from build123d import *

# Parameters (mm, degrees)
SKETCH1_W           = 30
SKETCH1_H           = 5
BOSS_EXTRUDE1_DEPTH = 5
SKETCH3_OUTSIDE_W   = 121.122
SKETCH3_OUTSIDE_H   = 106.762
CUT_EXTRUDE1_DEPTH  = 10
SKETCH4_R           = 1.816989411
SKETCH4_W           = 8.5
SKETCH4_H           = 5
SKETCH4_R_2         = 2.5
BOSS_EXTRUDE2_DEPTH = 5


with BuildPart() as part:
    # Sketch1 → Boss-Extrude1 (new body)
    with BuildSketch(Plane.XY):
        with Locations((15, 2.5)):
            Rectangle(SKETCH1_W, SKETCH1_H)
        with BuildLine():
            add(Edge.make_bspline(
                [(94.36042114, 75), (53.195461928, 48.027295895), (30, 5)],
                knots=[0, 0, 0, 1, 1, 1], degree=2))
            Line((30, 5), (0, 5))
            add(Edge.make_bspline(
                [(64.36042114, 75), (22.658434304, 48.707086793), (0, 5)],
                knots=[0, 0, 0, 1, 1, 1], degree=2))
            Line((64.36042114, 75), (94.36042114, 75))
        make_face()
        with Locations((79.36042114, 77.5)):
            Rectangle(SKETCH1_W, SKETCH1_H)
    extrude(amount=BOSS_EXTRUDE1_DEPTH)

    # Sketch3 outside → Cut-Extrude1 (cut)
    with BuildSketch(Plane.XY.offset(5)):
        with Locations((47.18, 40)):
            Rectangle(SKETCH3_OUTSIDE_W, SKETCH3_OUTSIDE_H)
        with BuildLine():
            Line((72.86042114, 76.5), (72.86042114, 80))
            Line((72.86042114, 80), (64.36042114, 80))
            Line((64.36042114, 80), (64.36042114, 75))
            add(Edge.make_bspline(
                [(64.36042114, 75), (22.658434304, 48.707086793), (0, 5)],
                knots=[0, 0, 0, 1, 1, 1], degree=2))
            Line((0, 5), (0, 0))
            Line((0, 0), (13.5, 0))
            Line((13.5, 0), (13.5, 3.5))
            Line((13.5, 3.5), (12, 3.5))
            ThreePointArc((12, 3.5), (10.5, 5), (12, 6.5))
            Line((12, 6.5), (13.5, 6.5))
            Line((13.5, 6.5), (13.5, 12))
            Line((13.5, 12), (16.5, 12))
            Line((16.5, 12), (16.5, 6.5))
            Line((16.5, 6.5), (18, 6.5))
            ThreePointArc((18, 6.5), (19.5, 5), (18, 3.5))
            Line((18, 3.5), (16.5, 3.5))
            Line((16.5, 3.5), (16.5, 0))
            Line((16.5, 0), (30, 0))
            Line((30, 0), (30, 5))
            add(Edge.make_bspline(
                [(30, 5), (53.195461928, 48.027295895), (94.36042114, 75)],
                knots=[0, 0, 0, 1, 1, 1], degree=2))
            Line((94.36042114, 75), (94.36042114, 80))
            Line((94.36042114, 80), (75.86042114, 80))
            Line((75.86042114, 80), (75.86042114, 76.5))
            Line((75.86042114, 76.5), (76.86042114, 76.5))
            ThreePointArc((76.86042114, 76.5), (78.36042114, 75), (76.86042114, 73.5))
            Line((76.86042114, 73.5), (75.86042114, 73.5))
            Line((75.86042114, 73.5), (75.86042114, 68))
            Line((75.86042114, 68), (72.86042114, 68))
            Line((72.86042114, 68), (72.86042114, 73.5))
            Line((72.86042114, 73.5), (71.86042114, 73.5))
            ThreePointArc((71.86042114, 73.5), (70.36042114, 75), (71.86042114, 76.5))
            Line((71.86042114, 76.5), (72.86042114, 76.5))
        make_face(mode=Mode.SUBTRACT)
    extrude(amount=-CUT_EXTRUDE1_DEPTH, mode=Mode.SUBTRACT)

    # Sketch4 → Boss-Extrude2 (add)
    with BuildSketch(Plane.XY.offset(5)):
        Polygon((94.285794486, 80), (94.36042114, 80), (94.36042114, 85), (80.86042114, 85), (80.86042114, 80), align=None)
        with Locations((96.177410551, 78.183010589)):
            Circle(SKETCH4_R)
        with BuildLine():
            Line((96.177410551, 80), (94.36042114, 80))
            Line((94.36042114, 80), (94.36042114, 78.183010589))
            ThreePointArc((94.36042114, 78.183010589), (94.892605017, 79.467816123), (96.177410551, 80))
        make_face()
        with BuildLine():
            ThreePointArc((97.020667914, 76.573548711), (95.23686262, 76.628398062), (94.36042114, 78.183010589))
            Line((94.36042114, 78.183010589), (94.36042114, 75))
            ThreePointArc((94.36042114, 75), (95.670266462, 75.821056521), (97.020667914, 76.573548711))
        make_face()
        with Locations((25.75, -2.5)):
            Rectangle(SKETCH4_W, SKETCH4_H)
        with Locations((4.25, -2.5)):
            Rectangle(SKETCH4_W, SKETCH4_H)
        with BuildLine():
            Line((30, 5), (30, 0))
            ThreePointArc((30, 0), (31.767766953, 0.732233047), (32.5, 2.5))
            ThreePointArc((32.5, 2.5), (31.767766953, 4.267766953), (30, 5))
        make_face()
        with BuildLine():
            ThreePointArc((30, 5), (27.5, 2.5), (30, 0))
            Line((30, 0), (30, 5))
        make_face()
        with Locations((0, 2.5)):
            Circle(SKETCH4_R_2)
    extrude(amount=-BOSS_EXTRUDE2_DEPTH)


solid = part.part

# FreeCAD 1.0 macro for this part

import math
import FreeCAD as App
import Part
import Sketcher
Q = App.Units.Quantity


def add_polygon(sketch, points):
    """Adds a closed chain of lines whose ends are joined by coincident constraints."""
    first, n = sketch.GeometryCount, len(points)
    for a, b in zip(points, points[1:] + points[:1]):
        sketch.addGeometry(Part.LineSegment(App.Vector(*a, 0), App.Vector(*b, 0)), False)
    for i in range(n):
        sketch.addConstraint(Sketcher.Constraint("Coincident", first + i, 2, first + (i + 1) % n, 1))

doc = App.newDocument("Part")
body = doc.addObject("PartDesign::Body", "Body")

sketch1 = body.newObject("Sketcher::SketchObject", "Sketch")
sketch1.AttachmentSupport = (doc.getObject("XY_Plane"), [""])
sketch1.MapMode = "FlatFace"
sketch1.addGeometry(Part.LineSegment(App.Vector(0, 5, 0), App.Vector(0, 0, 0)), False)
sketch1.addGeometry(Part.LineSegment(App.Vector(0, 0, 0), App.Vector(30, 0, 0)), False)
sketch1.addGeometry(Part.LineSegment(App.Vector(30, 0, 0), App.Vector(30, 5, 0)), False)
sketch1.addGeometry(Part.BSplineCurve([App.Vector(94.360421, 75, 0), App.Vector(53.195462, 48.027296, 0), App.Vector(30, 5, 0)], [3, 3], [0, 1], False, 2, [1, 1, 1], False), False)
sketch1.addGeometry(Part.LineSegment(App.Vector(94.360421, 75, 0), App.Vector(94.360421, 80, 0)), False)
sketch1.addGeometry(Part.LineSegment(App.Vector(94.360421, 80, 0), App.Vector(64.360421, 80, 0)), False)
sketch1.addGeometry(Part.LineSegment(App.Vector(64.360421, 80, 0), App.Vector(64.360421, 75, 0)), False)
sketch1.addGeometry(Part.BSplineCurve([App.Vector(64.360421, 75, 0), App.Vector(22.658434, 48.707087, 0), App.Vector(0, 5, 0)], [3, 3], [0, 1], False, 2, [1, 1, 1], False), False)
sketch1.addConstraint(Sketcher.Constraint("Block", 3))
sketch1.addConstraint(Sketcher.Constraint("Block", 7))
sketch1.addConstraint(Sketcher.Constraint("Coincident", 0, 2, 1, 1))
sketch1.addConstraint(Sketcher.Constraint("Coincident", 1, 2, 2, 1))
sketch1.addConstraint(Sketcher.Constraint("Coincident", 2, 2, 3, 2))
sketch1.addConstraint(Sketcher.Constraint("Coincident", 3, 1, 4, 1))
sketch1.addConstraint(Sketcher.Constraint("Coincident", 4, 2, 5, 1))
sketch1.addConstraint(Sketcher.Constraint("Coincident", 5, 2, 6, 1))
sketch1.addConstraint(Sketcher.Constraint("Coincident", 6, 2, 7, 1))
sketch1.addConstraint(Sketcher.Constraint("Coincident", 7, 2, 0, 1))
sketch1.addConstraint(Sketcher.Constraint("Vertical", 0))
sketch1.addConstraint(Sketcher.Constraint("Horizontal", 1))
sketch1.addConstraint(Sketcher.Constraint("Vertical", 2))
sketch1.addConstraint(Sketcher.Constraint("Vertical", 4))
sketch1.addConstraint(Sketcher.Constraint("Horizontal", 5))
sketch1.addConstraint(Sketcher.Constraint("Vertical", 6))
sketch1.addConstraint(Sketcher.Constraint("PointOnObject", 1, 2, -1))
sketch1.addConstraint(Sketcher.Constraint("Equal", 2, 4))
pad1 = body.newObject("PartDesign::Pad", "Pad")
pad1.Profile = sketch1
pad1.Length = 5

sketch2 = body.newObject("Sketcher::SketchObject", "Sketch001")
sketch2.AttachmentSupport = (doc.getObject("XY_Plane"), [""])
sketch2.MapMode = "FlatFace"
sketch2.AttachmentOffset = App.Placement(App.Vector(0, 0, 5), App.Rotation())
add_polygon(sketch2, [(-13.381, 93.381), (-13.381, -13.381), (107.741, -13.381), (107.741, 93.381)])
sketch2.addGeometry(Part.LineSegment(App.Vector(72.860421, 80, 0), App.Vector(72.860421, 76.5, 0)), False)
sketch2.addGeometry(Part.LineSegment(App.Vector(72.860421, 76.5, 0), App.Vector(71.860421, 76.5, 0)), False)
sketch2.addGeometry(Part.ArcOfCircle(Part.Circle(App.Vector(71.860421, 75, 0), App.Vector(0, 0, 1), 1.5), math.radians(90), math.radians(270)), False)
sketch2.addGeometry(Part.LineSegment(App.Vector(71.860421, 73.5, 0), App.Vector(72.860421, 73.5, 0)), False)
sketch2.addGeometry(Part.LineSegment(App.Vector(72.860421, 73.5, 0), App.Vector(72.860421, 68, 0)), False)
sketch2.addGeometry(Part.LineSegment(App.Vector(72.860421, 68, 0), App.Vector(75.860421, 68, 0)), False)
sketch2.addGeometry(Part.LineSegment(App.Vector(75.860421, 68, 0), App.Vector(75.860421, 73.5, 0)), False)
sketch2.addGeometry(Part.LineSegment(App.Vector(75.860421, 73.5, 0), App.Vector(76.860421, 73.5, 0)), False)
sketch2.addGeometry(Part.ArcOfCircle(Part.Circle(App.Vector(76.860421, 75, 0), App.Vector(0, 0, 1), 1.5), math.radians(-90), math.radians(90)), False)
sketch2.addGeometry(Part.LineSegment(App.Vector(76.860421, 76.5, 0), App.Vector(75.860421, 76.5, 0)), False)
sketch2.addGeometry(Part.LineSegment(App.Vector(75.860421, 76.5, 0), App.Vector(75.860421, 80, 0)), False)
sketch2.addGeometry(Part.LineSegment(App.Vector(75.860421, 80, 0), App.Vector(94.360421, 80, 0)), False)
sketch2.addGeometry(Part.LineSegment(App.Vector(94.360421, 80, 0), App.Vector(94.360421, 75, 0)), False)
sketch2.addGeometry(Part.BSplineCurve([App.Vector(30, 5, 0), App.Vector(53.195462, 48.027296, 0), App.Vector(94.360421, 75, 0)], [3, 3], [0, 1], False, 2, [1, 1, 1], False), False)
sketch2.addGeometry(Part.LineSegment(App.Vector(30, 5, 0), App.Vector(30, 0, 0)), False)
sketch2.addGeometry(Part.LineSegment(App.Vector(30, 0, 0), App.Vector(16.5, 0, 0)), False)
sketch2.addGeometry(Part.LineSegment(App.Vector(16.5, 0, 0), App.Vector(16.5, 3.5, 0)), False)
sketch2.addGeometry(Part.LineSegment(App.Vector(16.5, 3.5, 0), App.Vector(18, 3.5, 0)), False)
sketch2.addGeometry(Part.ArcOfCircle(Part.Circle(App.Vector(18, 5, 0), App.Vector(0, 0, 1), 1.5), math.radians(-90), math.radians(90)), False)
sketch2.addGeometry(Part.LineSegment(App.Vector(18, 6.5, 0), App.Vector(16.5, 6.5, 0)), False)
sketch2.addGeometry(Part.LineSegment(App.Vector(16.5, 6.5, 0), App.Vector(16.5, 12, 0)), False)
sketch2.addGeometry(Part.LineSegment(App.Vector(16.5, 12, 0), App.Vector(13.5, 12, 0)), False)
sketch2.addGeometry(Part.LineSegment(App.Vector(13.5, 12, 0), App.Vector(13.5, 6.5, 0)), False)
sketch2.addGeometry(Part.LineSegment(App.Vector(13.5, 6.5, 0), App.Vector(12, 6.5, 0)), False)
sketch2.addGeometry(Part.ArcOfCircle(Part.Circle(App.Vector(12, 5, 0), App.Vector(0, 0, 1), 1.5), math.radians(90), math.radians(270)), False)
sketch2.addGeometry(Part.LineSegment(App.Vector(12, 3.5, 0), App.Vector(13.5, 3.5, 0)), False)
sketch2.addGeometry(Part.LineSegment(App.Vector(13.5, 3.5, 0), App.Vector(13.5, 0, 0)), False)
sketch2.addGeometry(Part.LineSegment(App.Vector(13.5, 0, 0), App.Vector(0, 0, 0)), False)
sketch2.addGeometry(Part.LineSegment(App.Vector(0, 0, 0), App.Vector(0, 5, 0)), False)
sketch2.addGeometry(Part.BSplineCurve([App.Vector(64.360421, 75, 0), App.Vector(22.658434, 48.707087, 0), App.Vector(0, 5, 0)], [3, 3], [0, 1], False, 2, [1, 1, 1], False), False)
sketch2.addGeometry(Part.LineSegment(App.Vector(64.360421, 75, 0), App.Vector(64.360421, 80, 0)), False)
sketch2.addGeometry(Part.LineSegment(App.Vector(64.360421, 80, 0), App.Vector(72.860421, 80, 0)), False)
sketch2.addConstraint(Sketcher.Constraint("Block", 17))
sketch2.addConstraint(Sketcher.Constraint("Block", 33))
sketch2.addConstraint(Sketcher.Constraint("Coincident", 4, 2, 5, 1))
sketch2.addConstraint(Sketcher.Constraint("Coincident", 5, 2, 6, 1))
sketch2.addConstraint(Sketcher.Constraint("Coincident", 6, 2, 7, 1))
sketch2.addConstraint(Sketcher.Constraint("Coincident", 7, 2, 8, 1))
sketch2.addConstraint(Sketcher.Constraint("Coincident", 8, 2, 9, 1))
sketch2.addConstraint(Sketcher.Constraint("Coincident", 9, 2, 10, 1))
sketch2.addConstraint(Sketcher.Constraint("Coincident", 10, 2, 11, 1))
sketch2.addConstraint(Sketcher.Constraint("Coincident", 11, 2, 12, 1))
sketch2.addConstraint(Sketcher.Constraint("Coincident", 12, 2, 13, 1))
sketch2.addConstraint(Sketcher.Constraint("Coincident", 13, 2, 14, 1))
sketch2.addConstraint(Sketcher.Constraint("Coincident", 14, 2, 15, 1))
sketch2.addConstraint(Sketcher.Constraint("Coincident", 15, 2, 16, 1))
sketch2.addConstraint(Sketcher.Constraint("Coincident", 16, 2, 17, 2))
sketch2.addConstraint(Sketcher.Constraint("Coincident", 17, 1, 18, 1))
sketch2.addConstraint(Sketcher.Constraint("Coincident", 18, 2, 19, 1))
sketch2.addConstraint(Sketcher.Constraint("Coincident", 19, 2, 20, 1))
sketch2.addConstraint(Sketcher.Constraint("Coincident", 20, 2, 21, 1))
sketch2.addConstraint(Sketcher.Constraint("Coincident", 21, 2, 22, 1))
sketch2.addConstraint(Sketcher.Constraint("Coincident", 22, 2, 23, 1))
sketch2.addConstraint(Sketcher.Constraint("Coincident", 23, 2, 24, 1))
sketch2.addConstraint(Sketcher.Constraint("Coincident", 24, 2, 25, 1))
sketch2.addConstraint(Sketcher.Constraint("Coincident", 25, 2, 26, 1))
sketch2.addConstraint(Sketcher.Constraint("Coincident", 26, 2, 27, 1))
sketch2.addConstraint(Sketcher.Constraint("Coincident", 27, 2, 28, 1))
sketch2.addConstraint(Sketcher.Constraint("Coincident", 28, 2, 29, 1))
sketch2.addConstraint(Sketcher.Constraint("Coincident", 29, 2, 30, 1))
sketch2.addConstraint(Sketcher.Constraint("Coincident", 30, 2, 31, 1))
sketch2.addConstraint(Sketcher.Constraint("Coincident", 31, 2, 32, 1))
sketch2.addConstraint(Sketcher.Constraint("Coincident", 32, 2, 33, 2))
sketch2.addConstraint(Sketcher.Constraint("Coincident", 33, 1, 34, 1))
sketch2.addConstraint(Sketcher.Constraint("Coincident", 34, 2, 35, 1))
sketch2.addConstraint(Sketcher.Constraint("Coincident", 35, 2, 4, 1))
sketch2.addConstraint(Sketcher.Constraint("Vertical", 0))
sketch2.addConstraint(Sketcher.Constraint("Horizontal", 1))
sketch2.addConstraint(Sketcher.Constraint("Vertical", 2))
sketch2.addConstraint(Sketcher.Constraint("Horizontal", 3))
sketch2.addConstraint(Sketcher.Constraint("Vertical", 4))
sketch2.addConstraint(Sketcher.Constraint("Horizontal", 5))
sketch2.addConstraint(Sketcher.Constraint("Horizontal", 7))
sketch2.addConstraint(Sketcher.Constraint("Vertical", 8))
sketch2.addConstraint(Sketcher.Constraint("Horizontal", 9))
sketch2.addConstraint(Sketcher.Constraint("Vertical", 10))
sketch2.addConstraint(Sketcher.Constraint("Horizontal", 11))
sketch2.addConstraint(Sketcher.Constraint("Horizontal", 13))
sketch2.addConstraint(Sketcher.Constraint("Vertical", 14))
sketch2.addConstraint(Sketcher.Constraint("Horizontal", 15))
sketch2.addConstraint(Sketcher.Constraint("Vertical", 16))
sketch2.addConstraint(Sketcher.Constraint("Vertical", 18))
sketch2.addConstraint(Sketcher.Constraint("Horizontal", 19))
sketch2.addConstraint(Sketcher.Constraint("Vertical", 20))
sketch2.addConstraint(Sketcher.Constraint("Horizontal", 21))
sketch2.addConstraint(Sketcher.Constraint("Horizontal", 23))
sketch2.addConstraint(Sketcher.Constraint("Vertical", 24))
sketch2.addConstraint(Sketcher.Constraint("Horizontal", 25))
sketch2.addConstraint(Sketcher.Constraint("Vertical", 26))
sketch2.addConstraint(Sketcher.Constraint("Horizontal", 27))
sketch2.addConstraint(Sketcher.Constraint("Horizontal", 29))
sketch2.addConstraint(Sketcher.Constraint("Vertical", 30))
sketch2.addConstraint(Sketcher.Constraint("Horizontal", 31))
sketch2.addConstraint(Sketcher.Constraint("Vertical", 32))
sketch2.addConstraint(Sketcher.Constraint("Vertical", 34))
sketch2.addConstraint(Sketcher.Constraint("Horizontal", 35))
sketch2.addConstraint(Sketcher.Constraint("PointOnObject", 18, 2, -1))
sketch2.addConstraint(Sketcher.Constraint("PointOnObject", 30, 2, -1))
sketch2.addConstraint(Sketcher.Constraint("Radius", 6, Q("1.5 mm")))
sketch2.addConstraint(Sketcher.Constraint("Radius", 12, Q("1.5 mm")))
sketch2.addConstraint(Sketcher.Constraint("Radius", 22, Q("1.5 mm")))
sketch2.addConstraint(Sketcher.Constraint("Radius", 28, Q("1.5 mm")))
sketch2.addConstraint(Sketcher.Constraint("DistanceX", 5, 2, 5, 1, Q("1 mm")))
sketch2.addConstraint(Sketcher.Constraint("DistanceX", 7, 1, 7, 2, Q("1 mm")))
sketch2.addConstraint(Sketcher.Constraint("DistanceX", 9, 1, 9, 2, Q("3 mm")))
sketch2.addConstraint(Sketcher.Constraint("DistanceX", 11, 1, 11, 2, Q("1 mm")))
sketch2.addConstraint(Sketcher.Constraint("DistanceX", 13, 2, 13, 1, Q("1 mm")))
sketch2.addConstraint(Sketcher.Constraint("DistanceX", 25, 2, 25, 1, Q("3 mm")))
sketch2.addConstraint(Sketcher.Constraint("DistanceY", 16, 2, 16, 1, Q("5 mm")))
sketch2.addConstraint(Sketcher.Constraint("DistanceY", 34, 1, 34, 2, Q("5 mm")))
sketch2.addConstraint(Sketcher.Constraint("DistanceX", 15, 1, 15, 2, Q("18.5 mm")))
sketch2.addConstraint(Sketcher.Constraint("DistanceX", 19, 2, 19, 1, Q("13.5 mm")))
sketch2.addConstraint(Sketcher.Constraint("DistanceX", 21, 1, 21, 2, Q("1.5 mm")))
sketch2.addConstraint(Sketcher.Constraint("DistanceX", 23, 2, 23, 1, Q("1.5 mm")))
sketch2.addConstraint(Sketcher.Constraint("DistanceX", 27, 2, 27, 1, Q("1.5 mm")))
sketch2.addConstraint(Sketcher.Constraint("DistanceX", 29, 1, 29, 2, Q("1.5 mm")))
sketch2.addConstraint(Sketcher.Constraint("DistanceX", 31, 2, 31, 1, Q("13.5 mm")))
sketch2.addConstraint(Sketcher.Constraint("DistanceX", 35, 1, 35, 2, Q("8.5 mm")))
sketch2.addConstraint(Sketcher.Constraint("DistanceY", 4, 2, 4, 1, Q("3.5 mm")))
sketch2.addConstraint(Sketcher.Constraint("DistanceY", 8, 2, 8, 1, Q("5.5 mm")))
sketch2.addConstraint(Sketcher.Constraint("DistanceY", 10, 1, 10, 2, Q("5.5 mm")))
sketch2.addConstraint(Sketcher.Constraint("DistanceY", 20, 1, 20, 2, Q("3.5 mm")))
sketch2.addConstraint(Sketcher.Constraint("DistanceY", 24, 1, 24, 2, Q("5.5 mm")))
sketch2.addConstraint(Sketcher.Constraint("DistanceY", 26, 2, 26, 1, Q("5.5 mm")))
sketch2.addConstraint(Sketcher.Constraint("DistanceX", -1, 1, 22, 3, Q("18 mm")))
sketch2.addConstraint(Sketcher.Constraint("DistanceX", -1, 1, 28, 3, Q("12 mm")))
sketch2.addConstraint(Sketcher.Constraint("DistanceX", -1, 1, 22, 2, Q("18 mm")))
sketch2.addConstraint(Sketcher.Constraint("DistanceX", 6, 3, 12, 3, Q("5 mm")))
sketch2.addConstraint(Sketcher.Constraint("DistanceX", 6, 3, 4, 2, Q("1 mm")))
sketch2.addConstraint(Sketcher.Constraint("DistanceX", 6, 2, 4, 2, Q("1 mm")))
sketch2.addConstraint(Sketcher.Constraint("DistanceX", 1, 1, 1, 2, Q("121.122 mm")))
sketch2.addConstraint(Sketcher.Constraint("DistanceY", 0, 2, 0, 1, Q("106.762 mm")))
sketch2.addConstraint(Sketcher.Constraint("DistanceX", 0, 2, -1, 1, Q("13.381 mm")))
sketch2.addConstraint(Sketcher.Constraint("DistanceY", 0, 2, -1, 1, Q("13.381 mm")))
pocket1 = body.newObject("PartDesign::Pocket", "Pocket")
pocket1.Profile = sketch2
pocket1.Length = 10

sketch3 = body.newObject("Sketcher::SketchObject", "Sketch002")
sketch3.AttachmentSupport = (doc.getObject("XY_Plane"), [""])
sketch3.MapMode = "FlatFace"
sketch3.AttachmentOffset = App.Placement(App.Vector(0, 0, 5), App.Rotation())
add_polygon(sketch3, [(94.4, 80), (94.4, 85), (80.9, 85), (80.9, 80)])
sketch3.addGeometry(Part.LineSegment(App.Vector(96.2, 80, 0), App.Vector(94.4, 80, 0)), False)
sketch3.addGeometry(Part.LineSegment(App.Vector(94.4, 80, 0), App.Vector(94.4, 75, 0)), False)
sketch3.addGeometry(Part.ArcOfCircle(Part.Circle(App.Vector(110.9, 50, 0), App.Vector(0, 0, 1), 30), math.radians(117.65), math.radians(123.56)), False)
sketch3.addGeometry(Part.ArcOfCircle(Part.Circle(App.Vector(96.2, 78.2, 0), App.Vector(0, 0, 1), 1.8), math.radians(-62), math.radians(90)), False)
add_polygon(sketch3, [(21.5, 0), (21.5, -5), (30, -5), (30, 0)])
add_polygon(sketch3, [(0, 0), (0, -5), (8.5, -5), (8.5, 0)])
sketch3.addGeometry(Part.ArcOfCircle(Part.Circle(App.Vector(30, 2.5, 0), App.Vector(0, 0, 1), 2.5), math.radians(-90), math.radians(0)), False)
sketch3.addGeometry(Part.ArcOfCircle(Part.Circle(App.Vector(30, 2.5, 0), App.Vector(0, 0, 1), 2.5), math.radians(0), math.radians(90)), False)
sketch3.addGeometry(Part.ArcOfCircle(Part.Circle(App.Vector(30, 2.5, 0), App.Vector(0, 0, 1), 2.5), math.radians(90), math.radians(270)), False)
sketch3.addGeometry(Part.Circle(App.Vector(0, 2.5, 0), App.Vector(0, 0, 1), 2.5), False)
sketch3.addConstraint(Sketcher.Constraint("Coincident", 4, 2, 5, 1))
sketch3.addConstraint(Sketcher.Constraint("Coincident", 5, 2, 6, 2))
sketch3.addConstraint(Sketcher.Constraint("Tangent", 6, 1, 7, 1))
sketch3.addConstraint(Sketcher.Constraint("Tangent", 7, 2, 4, 1))
sketch3.addConstraint(Sketcher.Constraint("Tangent", 16, 2, 17, 1))
sketch3.addConstraint(Sketcher.Constraint("Tangent", 17, 2, 18, 1))
sketch3.addConstraint(Sketcher.Constraint("Tangent", 18, 2, 16, 1))
sketch3.addConstraint(Sketcher.Constraint("Vertical", 0))
sketch3.addConstraint(Sketcher.Constraint("Horizontal", 1))
sketch3.addConstraint(Sketcher.Constraint("Vertical", 2))
sketch3.addConstraint(Sketcher.Constraint("Horizontal", 3))
sketch3.addConstraint(Sketcher.Constraint("Horizontal", 4))
sketch3.addConstraint(Sketcher.Constraint("Vertical", 5))
sketch3.addConstraint(Sketcher.Constraint("Vertical", 8))
sketch3.addConstraint(Sketcher.Constraint("Horizontal", 9))
sketch3.addConstraint(Sketcher.Constraint("Vertical", 10))
sketch3.addConstraint(Sketcher.Constraint("Horizontal", 11))
sketch3.addConstraint(Sketcher.Constraint("Vertical", 12))
sketch3.addConstraint(Sketcher.Constraint("Horizontal", 13))
sketch3.addConstraint(Sketcher.Constraint("Vertical", 14))
sketch3.addConstraint(Sketcher.Constraint("Horizontal", 15))
sketch3.addConstraint(Sketcher.Constraint("Coincident", 15, 2, -1, 1))
sketch3.addConstraint(Sketcher.Constraint("Coincident", 4, 2, 3, 2))
sketch3.addConstraint(Sketcher.Constraint("Coincident", 18, 2, 10, 2))
sketch3.addConstraint(Sketcher.Constraint("Equal", 18, 19))
sketch3.addConstraint(Sketcher.Constraint("Symmetric", 9, 2, 17, 2, -1))
sketch3.addConstraint(Sketcher.Constraint("PointOnObject", 19, 3, -2))
sketch3.addConstraint(Sketcher.Constraint("PointOnObject", 10, 2, -1))
sketch3.addConstraint(Sketcher.Constraint("Horizontal", 18, 3, 19, 3))
sketch3.addConstraint(Sketcher.Constraint("Horizontal", 9, 2, 12, 2))
sketch3.addConstraint(Sketcher.Constraint("Horizontal", 19, 3, 16, 2))
sketch3.addConstraint(Sketcher.Constraint("Vertical", 18, 3, 9, 2))
sketch3.addConstraint(Sketcher.Constraint("Equal", 11, 13))
sketch3.addConstraint(Sketcher.Constraint("Equal", 2, 5))
sketch3.addConstraint(Sketcher.Constraint("Equal", 5, 8))
sketch3.addConstraint(Sketcher.Constraint("Diameter", 19, Q("5 mm")))
sketch3.addConstraint(Sketcher.Constraint("Radius", 6, Q("30 mm")))
sketch3.addConstraint(Sketcher.Constraint("DistanceX", 1, 2, 1, 1, Q("13.5 mm")))
sketch3.addConstraint(Sketcher.Constraint("DistanceX", 9, 1, 9, 2, Q("8.5 mm")))
sketch3.addConstraint(Sketcher.Constraint("DistanceY", -1, 1, 6, 3, Q("50 mm")))
sketch3.addConstraint(Sketcher.Constraint("DistanceX", -1, 1, 16, 3, Q("30 mm")))
sketch3.addConstraint(Sketcher.Constraint("DistanceY", -1, 1, 0, 2, Q("85 mm")))
sketch3.addConstraint(Sketcher.Constraint("Radius", 7, Q("1.816989 mm")))
sketch3.addConstraint(Sketcher.Constraint("DistanceX", -1, 1, 7, 3, Q("96.177411 mm")))
pad2 = body.newObject("PartDesign::Pad", "Pad001")
pad2.Profile = sketch3
pad2.Length = 5
pad2.Reversed = True

doc.recompute()
